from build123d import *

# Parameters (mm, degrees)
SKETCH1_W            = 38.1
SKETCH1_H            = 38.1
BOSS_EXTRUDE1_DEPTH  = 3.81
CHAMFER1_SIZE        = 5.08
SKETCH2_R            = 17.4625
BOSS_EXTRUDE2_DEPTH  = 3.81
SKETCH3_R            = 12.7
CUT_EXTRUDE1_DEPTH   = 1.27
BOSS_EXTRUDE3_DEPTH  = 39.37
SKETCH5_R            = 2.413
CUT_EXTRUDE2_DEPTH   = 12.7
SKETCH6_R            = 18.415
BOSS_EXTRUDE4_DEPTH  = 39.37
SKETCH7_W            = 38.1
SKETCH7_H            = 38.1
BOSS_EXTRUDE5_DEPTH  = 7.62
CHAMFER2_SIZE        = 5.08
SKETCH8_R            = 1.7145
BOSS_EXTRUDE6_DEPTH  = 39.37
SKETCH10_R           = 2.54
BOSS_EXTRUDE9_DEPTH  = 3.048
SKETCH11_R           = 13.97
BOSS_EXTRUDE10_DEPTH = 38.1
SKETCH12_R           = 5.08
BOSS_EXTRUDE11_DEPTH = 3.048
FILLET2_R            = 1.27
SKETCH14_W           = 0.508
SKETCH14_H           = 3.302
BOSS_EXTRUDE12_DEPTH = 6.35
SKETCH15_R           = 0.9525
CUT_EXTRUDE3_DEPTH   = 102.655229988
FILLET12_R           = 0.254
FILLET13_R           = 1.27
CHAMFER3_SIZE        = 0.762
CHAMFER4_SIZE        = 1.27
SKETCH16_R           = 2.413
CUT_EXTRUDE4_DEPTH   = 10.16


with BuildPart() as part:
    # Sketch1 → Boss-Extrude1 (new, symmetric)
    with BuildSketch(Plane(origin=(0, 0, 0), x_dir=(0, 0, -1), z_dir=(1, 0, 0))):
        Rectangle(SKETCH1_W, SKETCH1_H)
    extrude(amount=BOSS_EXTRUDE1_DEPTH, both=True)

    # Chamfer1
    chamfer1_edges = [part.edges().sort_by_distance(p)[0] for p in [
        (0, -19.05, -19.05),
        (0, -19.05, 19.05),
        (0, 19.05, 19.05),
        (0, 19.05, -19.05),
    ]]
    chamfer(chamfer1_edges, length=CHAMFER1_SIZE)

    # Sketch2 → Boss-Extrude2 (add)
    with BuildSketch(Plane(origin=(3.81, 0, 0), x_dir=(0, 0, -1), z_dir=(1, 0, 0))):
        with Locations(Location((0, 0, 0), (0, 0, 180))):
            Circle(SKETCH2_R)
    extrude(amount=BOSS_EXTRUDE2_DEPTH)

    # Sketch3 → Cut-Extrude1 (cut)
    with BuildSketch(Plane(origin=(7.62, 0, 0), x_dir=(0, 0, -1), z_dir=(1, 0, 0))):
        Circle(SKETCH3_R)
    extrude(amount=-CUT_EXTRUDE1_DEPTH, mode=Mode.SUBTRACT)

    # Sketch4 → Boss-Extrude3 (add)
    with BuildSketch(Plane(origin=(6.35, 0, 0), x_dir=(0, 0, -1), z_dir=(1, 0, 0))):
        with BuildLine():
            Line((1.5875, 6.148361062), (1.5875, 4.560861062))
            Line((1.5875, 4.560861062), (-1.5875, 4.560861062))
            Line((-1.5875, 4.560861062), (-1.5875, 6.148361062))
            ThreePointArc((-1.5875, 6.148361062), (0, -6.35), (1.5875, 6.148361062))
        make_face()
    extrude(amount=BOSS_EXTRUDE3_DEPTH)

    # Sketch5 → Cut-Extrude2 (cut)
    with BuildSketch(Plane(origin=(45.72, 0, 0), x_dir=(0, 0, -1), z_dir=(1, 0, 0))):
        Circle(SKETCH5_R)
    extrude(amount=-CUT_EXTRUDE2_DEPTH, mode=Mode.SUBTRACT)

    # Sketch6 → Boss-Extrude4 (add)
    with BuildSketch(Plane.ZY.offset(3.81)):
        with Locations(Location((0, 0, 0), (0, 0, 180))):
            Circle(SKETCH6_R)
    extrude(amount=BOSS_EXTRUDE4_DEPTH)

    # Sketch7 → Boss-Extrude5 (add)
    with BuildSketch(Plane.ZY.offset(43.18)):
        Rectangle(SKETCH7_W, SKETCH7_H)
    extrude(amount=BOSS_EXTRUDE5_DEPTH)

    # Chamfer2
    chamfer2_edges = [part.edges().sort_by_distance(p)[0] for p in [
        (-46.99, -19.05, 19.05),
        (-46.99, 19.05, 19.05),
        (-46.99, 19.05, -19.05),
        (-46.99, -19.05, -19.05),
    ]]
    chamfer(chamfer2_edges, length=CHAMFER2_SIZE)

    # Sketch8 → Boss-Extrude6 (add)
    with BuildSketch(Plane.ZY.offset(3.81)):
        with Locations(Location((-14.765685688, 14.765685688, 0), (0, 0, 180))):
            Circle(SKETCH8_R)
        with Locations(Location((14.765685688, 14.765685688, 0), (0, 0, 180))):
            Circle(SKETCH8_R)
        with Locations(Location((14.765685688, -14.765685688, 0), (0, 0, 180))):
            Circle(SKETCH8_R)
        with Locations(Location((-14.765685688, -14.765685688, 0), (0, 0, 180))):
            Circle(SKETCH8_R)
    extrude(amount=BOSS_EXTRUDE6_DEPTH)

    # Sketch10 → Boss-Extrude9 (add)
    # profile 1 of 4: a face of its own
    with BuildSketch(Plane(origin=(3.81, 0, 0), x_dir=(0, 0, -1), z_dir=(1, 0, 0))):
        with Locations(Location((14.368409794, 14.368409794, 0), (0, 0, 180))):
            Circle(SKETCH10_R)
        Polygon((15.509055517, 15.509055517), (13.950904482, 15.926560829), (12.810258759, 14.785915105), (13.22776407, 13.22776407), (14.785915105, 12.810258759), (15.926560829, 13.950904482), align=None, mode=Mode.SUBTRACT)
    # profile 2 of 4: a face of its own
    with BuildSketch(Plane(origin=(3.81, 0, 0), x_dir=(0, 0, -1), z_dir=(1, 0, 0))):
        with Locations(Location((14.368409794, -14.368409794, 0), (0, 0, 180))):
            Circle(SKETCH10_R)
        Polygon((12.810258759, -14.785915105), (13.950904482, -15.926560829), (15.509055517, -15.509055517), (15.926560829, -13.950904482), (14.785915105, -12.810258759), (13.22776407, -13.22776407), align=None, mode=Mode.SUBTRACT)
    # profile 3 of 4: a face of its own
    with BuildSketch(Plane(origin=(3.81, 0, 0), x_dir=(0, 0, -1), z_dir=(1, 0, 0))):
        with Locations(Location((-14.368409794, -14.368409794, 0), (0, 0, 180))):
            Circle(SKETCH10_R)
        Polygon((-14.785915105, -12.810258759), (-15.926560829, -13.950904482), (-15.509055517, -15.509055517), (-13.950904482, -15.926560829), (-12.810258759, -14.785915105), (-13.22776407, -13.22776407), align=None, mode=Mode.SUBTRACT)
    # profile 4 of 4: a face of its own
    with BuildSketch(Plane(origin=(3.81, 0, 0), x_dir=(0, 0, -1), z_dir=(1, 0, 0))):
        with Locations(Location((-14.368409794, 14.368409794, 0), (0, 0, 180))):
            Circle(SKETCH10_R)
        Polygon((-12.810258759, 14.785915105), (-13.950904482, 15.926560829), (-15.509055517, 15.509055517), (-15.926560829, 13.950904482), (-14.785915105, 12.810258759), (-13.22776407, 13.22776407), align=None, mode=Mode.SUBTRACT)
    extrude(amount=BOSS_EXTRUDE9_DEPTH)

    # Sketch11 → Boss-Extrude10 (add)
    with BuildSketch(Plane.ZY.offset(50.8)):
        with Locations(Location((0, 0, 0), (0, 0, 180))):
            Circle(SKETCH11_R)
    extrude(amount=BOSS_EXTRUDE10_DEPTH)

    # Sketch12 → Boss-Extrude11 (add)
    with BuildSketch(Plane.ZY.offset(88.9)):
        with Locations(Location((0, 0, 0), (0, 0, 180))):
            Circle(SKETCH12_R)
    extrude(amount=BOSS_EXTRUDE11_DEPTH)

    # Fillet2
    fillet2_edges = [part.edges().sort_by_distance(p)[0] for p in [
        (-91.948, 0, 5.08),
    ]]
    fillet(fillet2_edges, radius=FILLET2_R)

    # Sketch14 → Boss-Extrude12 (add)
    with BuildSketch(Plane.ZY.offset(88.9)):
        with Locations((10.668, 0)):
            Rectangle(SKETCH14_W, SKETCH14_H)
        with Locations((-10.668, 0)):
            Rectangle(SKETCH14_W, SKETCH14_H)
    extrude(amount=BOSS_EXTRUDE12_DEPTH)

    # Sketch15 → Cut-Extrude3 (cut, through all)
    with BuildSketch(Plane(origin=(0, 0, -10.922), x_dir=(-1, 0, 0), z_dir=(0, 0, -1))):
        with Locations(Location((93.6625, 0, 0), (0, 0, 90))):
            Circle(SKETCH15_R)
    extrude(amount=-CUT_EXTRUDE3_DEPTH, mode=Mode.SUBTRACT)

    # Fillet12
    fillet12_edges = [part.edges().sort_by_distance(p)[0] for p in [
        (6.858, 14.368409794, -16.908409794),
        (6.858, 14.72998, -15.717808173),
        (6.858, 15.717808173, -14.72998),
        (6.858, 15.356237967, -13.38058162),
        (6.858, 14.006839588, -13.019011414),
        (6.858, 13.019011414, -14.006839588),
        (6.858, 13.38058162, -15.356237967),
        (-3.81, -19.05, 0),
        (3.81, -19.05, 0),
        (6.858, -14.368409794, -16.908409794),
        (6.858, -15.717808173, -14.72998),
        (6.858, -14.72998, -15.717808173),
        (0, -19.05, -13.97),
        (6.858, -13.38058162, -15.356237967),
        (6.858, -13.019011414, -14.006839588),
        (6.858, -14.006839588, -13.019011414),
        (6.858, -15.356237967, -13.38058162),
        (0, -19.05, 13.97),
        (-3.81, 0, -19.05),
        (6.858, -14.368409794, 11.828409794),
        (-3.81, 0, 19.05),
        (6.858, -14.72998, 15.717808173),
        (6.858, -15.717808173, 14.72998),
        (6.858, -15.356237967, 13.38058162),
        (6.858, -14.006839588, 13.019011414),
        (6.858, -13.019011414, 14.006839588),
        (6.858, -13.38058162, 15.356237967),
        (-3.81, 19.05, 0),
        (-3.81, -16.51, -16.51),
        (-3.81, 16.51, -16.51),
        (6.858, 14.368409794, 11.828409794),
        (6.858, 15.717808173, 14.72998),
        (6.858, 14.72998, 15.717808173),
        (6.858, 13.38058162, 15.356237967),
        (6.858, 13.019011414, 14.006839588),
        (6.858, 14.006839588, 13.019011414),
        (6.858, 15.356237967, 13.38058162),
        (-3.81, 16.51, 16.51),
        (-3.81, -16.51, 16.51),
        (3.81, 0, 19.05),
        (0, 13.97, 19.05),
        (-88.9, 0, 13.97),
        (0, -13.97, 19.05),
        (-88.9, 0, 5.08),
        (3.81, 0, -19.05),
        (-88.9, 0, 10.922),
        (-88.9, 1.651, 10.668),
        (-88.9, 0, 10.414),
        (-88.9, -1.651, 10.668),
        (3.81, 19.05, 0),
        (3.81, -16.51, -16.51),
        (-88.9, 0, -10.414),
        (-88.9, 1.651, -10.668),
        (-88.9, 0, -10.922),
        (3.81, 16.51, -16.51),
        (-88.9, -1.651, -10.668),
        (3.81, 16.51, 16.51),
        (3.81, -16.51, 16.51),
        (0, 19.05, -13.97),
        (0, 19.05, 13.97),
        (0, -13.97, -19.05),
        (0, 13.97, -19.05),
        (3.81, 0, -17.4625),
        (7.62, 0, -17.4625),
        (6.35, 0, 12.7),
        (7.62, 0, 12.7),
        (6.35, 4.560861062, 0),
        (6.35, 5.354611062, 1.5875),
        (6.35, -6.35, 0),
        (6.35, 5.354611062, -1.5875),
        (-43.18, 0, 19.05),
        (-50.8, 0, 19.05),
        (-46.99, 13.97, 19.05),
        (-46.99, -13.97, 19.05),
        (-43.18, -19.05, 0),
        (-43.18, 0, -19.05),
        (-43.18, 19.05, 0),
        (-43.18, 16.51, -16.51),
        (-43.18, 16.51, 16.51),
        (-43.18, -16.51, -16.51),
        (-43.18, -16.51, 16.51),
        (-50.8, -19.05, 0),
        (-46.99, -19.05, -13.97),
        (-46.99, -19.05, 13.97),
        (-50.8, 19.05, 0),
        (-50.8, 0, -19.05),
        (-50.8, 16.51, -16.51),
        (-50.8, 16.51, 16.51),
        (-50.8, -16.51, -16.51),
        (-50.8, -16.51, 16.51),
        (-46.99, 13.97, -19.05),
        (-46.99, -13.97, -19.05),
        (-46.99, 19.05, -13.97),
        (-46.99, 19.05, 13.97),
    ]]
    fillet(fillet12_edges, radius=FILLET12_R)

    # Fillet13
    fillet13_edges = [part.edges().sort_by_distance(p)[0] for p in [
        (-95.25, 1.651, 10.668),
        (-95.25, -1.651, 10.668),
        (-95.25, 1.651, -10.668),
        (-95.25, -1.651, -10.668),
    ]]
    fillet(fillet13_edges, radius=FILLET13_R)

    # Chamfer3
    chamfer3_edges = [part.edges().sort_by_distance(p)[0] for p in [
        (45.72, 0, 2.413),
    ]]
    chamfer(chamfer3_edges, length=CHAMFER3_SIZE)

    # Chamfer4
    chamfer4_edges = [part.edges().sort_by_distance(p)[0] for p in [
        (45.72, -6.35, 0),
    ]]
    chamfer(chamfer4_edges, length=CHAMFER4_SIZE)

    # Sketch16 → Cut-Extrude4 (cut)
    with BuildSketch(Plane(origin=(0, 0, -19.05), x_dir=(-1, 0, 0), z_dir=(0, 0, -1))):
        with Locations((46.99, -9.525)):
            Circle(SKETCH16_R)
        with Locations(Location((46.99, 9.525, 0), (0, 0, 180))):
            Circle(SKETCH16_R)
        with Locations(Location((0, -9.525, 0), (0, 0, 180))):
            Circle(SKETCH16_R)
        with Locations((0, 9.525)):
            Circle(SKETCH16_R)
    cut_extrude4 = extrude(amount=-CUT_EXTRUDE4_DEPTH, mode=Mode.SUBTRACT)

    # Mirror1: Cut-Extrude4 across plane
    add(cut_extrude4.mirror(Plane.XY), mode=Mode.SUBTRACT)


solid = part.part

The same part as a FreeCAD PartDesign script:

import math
import FreeCAD as App
import Part
import Sketcher
from FreeCAD import Vector
Q = App.Units.Quantity


def edges_at(feature, points):
    """Names of the edges that pass closest to the given points."""
    edges = feature.Shape.Edges
    near = lambda p: min(range(len(edges)), key=lambda i: edges[i].distToShape(Part.Vertex(*p))[0])
    return sorted({f"Edge{near(p) + 1}" for p in points})


def add_polygon(sketch, points):
    """Adds a closed chain of lines whose ends are joined by coincident constraints."""
    first, n = sketch.GeometryCount, len(points)
    for a, b in zip(points, points[1:] + points[:1]):
        sketch.addGeometry(Part.LineSegment(App.Vector(*a, 0), App.Vector(*b, 0)), False)
    for i in range(n):
        sketch.addConstraint(Sketcher.Constraint("Coincident", first + i, 2, first + (i + 1) % n, 1))

doc = App.newDocument("Part")
body = doc.addObject("PartDesign::Body", "Body")

sketch1 = body.newObject("Sketcher::SketchObject", "Sketch")
sketch1.AttachmentSupport = (doc.getObject("YZ_Plane"), [""])
sketch1.MapMode = "FlatFace"
add_polygon(sketch1, [(19, 19), (-19, 19), (-19, -19), (19, -19)])
sketch1.addConstraint([
    Sketcher.Constraint("Horizontal", 0),
    Sketcher.Constraint("Vertical", 1),
    Sketcher.Constraint("Horizontal", 2),
    Sketcher.Constraint("Vertical", 3),
    Sketcher.Constraint("Symmetric", 0, 2, 2, 2, -1, 1),
    Sketcher.Constraint("Equal", 2, 1),
    Sketcher.Constraint("DistanceX", 0, 2, 0, 1, Q("1.5 in")),
])
pad1 = body.newObject("PartDesign::Pad", "Pad")
pad1.Profile = sketch1
pad1.Length = Q("0.3 in")
pad1.Midplane = True
doc.recompute()

chamfer = body.newObject("PartDesign::Chamfer", "Chamfer")
chamfer.Base = (pad1, edges_at(pad1, [
    (0, -19.05, -19.05),
    (0, -19.05, 19.05),
    (0, 19.05, 19.05),
    (0, 19.05, -19.05),
]))
chamfer.Size = Q("0.2 in")

sketch2 = body.newObject("Sketcher::SketchObject", "Sketch001")
sketch2.AttachmentSupport = (doc.getObject("YZ_Plane"), [""])
sketch2.MapMode = "FlatFace"
sketch2.AttachmentOffset = App.Placement(Vector(0, 0, 0.15 * 25.4), App.Rotation())
sketch2.addGeometry(Part.Circle(Vector(0, 0, 0), Vector(0, 0, 1), 17), False)
sketch2.addConstraint([
    Sketcher.Constraint("Coincident", 0, 3, -1, 1),
    Sketcher.Constraint("Diameter", 0, Q("1.375 in")),
])
pad2 = body.newObject("PartDesign::Pad", "Pad001")
pad2.Profile = sketch2
pad2.Length = Q("0.15 in")

sketch3 = body.newObject("Sketcher::SketchObject", "Sketch002")
sketch3.AttachmentSupport = (doc.getObject("YZ_Plane"), [""])
sketch3.MapMode = "FlatFace"
sketch3.AttachmentOffset = App.Placement(Vector(0, 0, 0.3 * 25.4), App.Rotation())
sketch3.addGeometry(Part.Circle(Vector(0, 0, 0), Vector(0, 0, 1), 13), False)
sketch3.addConstraint([
    Sketcher.Constraint("Coincident", 0, 3, -1, 1),
    Sketcher.Constraint("Diameter", 0, Q("1 in")),
])
pocket1 = body.newObject("PartDesign::Pocket", "Pocket")
pocket1.Profile = sketch3
pocket1.Length = Q("0.05 in")

sketch4 = body.newObject("Sketcher::SketchObject", "Sketch003")
sketch4.AttachmentSupport = (doc.getObject("YZ_Plane"), [""])
sketch4.MapMode = "FlatFace"
sketch4.AttachmentOffset = App.Placement(Vector(0, 0, 0.25 * 25.4), App.Rotation())
sketch4.addGeometry([
    Part.LineSegment(Vector(6.1, -1.6, 0), Vector(4.6, -1.6, 0)),
    Part.LineSegment(Vector(4.6, -1.6, 0), Vector(4.6, 1.6, 0)),
    Part.LineSegment(Vector(4.6, 1.6, 0), Vector(6.1, 1.6, 0)),
    Part.ArcOfCircle(Part.Circle(Vector(0, 0, 0), Vector(0, 0, 1), 6.3), math.radians(14), math.radians(346)),
], False)
sketch4.addConstraint([
    Sketcher.Constraint("Coincident", 0, 2, 1, 1),
    Sketcher.Constraint("Coincident", 1, 2, 2, 1),
    Sketcher.Constraint("Coincident", 2, 2, 3, 1),
    Sketcher.Constraint("Coincident", 3, 2, 0, 1),
    Sketcher.Constraint("Horizontal", 0),
    Sketcher.Constraint("Vertical", 1),
    Sketcher.Constraint("Horizontal", 2),
    Sketcher.Constraint("Coincident", 3, 3, -1, 1),
    Sketcher.Constraint("Vertical", 2, 2, 3, 2),
    Sketcher.Constraint("Radius", 3, Q("0.25 in")),
    Sketcher.Constraint("DistanceX", 0, 2, 0, 1, Q("0.0625 in")),
    Sketcher.Constraint("DistanceY", 1, 1, 1, 2, Q("0.125 in")),
])
pad3 = body.newObject("PartDesign::Pad", "Pad002")
pad3.Profile = sketch4
pad3.Length = Q("1.55 in")

sketch5 = body.newObject("Sketcher::SketchObject", "Sketch004")
sketch5.AttachmentSupport = (doc.getObject("YZ_Plane"), [""])
sketch5.MapMode = "FlatFace"
sketch5.AttachmentOffset = App.Placement(Vector(0, 0, 1.8 * 25.4), App.Rotation())
sketch5.addGeometry(Part.Circle(Vector(0, 0, 0), Vector(0, 0, 1), 2.4), False)
sketch5.addConstraint([
    Sketcher.Constraint("Coincident", 0, 3, -1, 1),
    Sketcher.Constraint("Diameter", 0, Q("0.19 in")),
])
pocket2 = body.newObject("PartDesign::Pocket", "Pocket001")
pocket2.Profile = sketch5
pocket2.Length = Q("0.5 in")

sketch6 = body.newObject("Sketcher::SketchObject", "Sketch005")
sketch6.AttachmentSupport = (doc.getObject("YZ_Plane"), [""])
sketch6.MapMode = "FlatFace"
sketch6.AttachmentOffset = App.Placement(Vector(0, 0, -0.15 * 25.4), App.Rotation())
sketch6.addGeometry(Part.Circle(Vector(0, 0, 0), Vector(0, 0, 1), 18), False)
sketch6.addConstraint([
    Sketcher.Constraint("Coincident", 0, 3, -1, 1),
    Sketcher.Constraint("Diameter", 0, Q("1.45 in")),
])
pad4 = body.newObject("PartDesign::Pad", "Pad003")
pad4.Profile = sketch6
pad4.Length = Q("1.55 in")
pad4.Reversed = True

sketch7 = body.newObject("Sketcher::SketchObject", "Sketch006")
sketch7.AttachmentSupport = (doc.getObject("YZ_Plane"), [""])
sketch7.MapMode = "FlatFace"
sketch7.AttachmentOffset = App.Placement(Vector(0, 0, -1.7 * 25.4), App.Rotation())
add_polygon(sketch7, [(19, -19), (-19, -19), (-19, 19), (19, 19)])
sketch7.addConstraint([
    Sketcher.Constraint("Horizontal", 0),
    Sketcher.Constraint("Vertical", 1),
    Sketcher.Constraint("Horizontal", 2),
    Sketcher.Constraint("Vertical", 3),
    Sketcher.Constraint("Symmetric", 0, 2, 2, 2, -1, 1),
    Sketcher.Constraint("Equal", 2, 1),
    Sketcher.Constraint("DistanceX", 0, 2, 0, 1, Q("1.5 in")),
])
pad5 = body.newObject("PartDesign::Pad", "Pad004")
pad5.Profile = sketch7
pad5.Length = Q("0.3 in")
pad5.Reversed = True
doc.recompute()

chamfer2 = body.newObject("PartDesign::Chamfer", "Chamfer001")
chamfer2.Base = (pad5, edges_at(pad5, [
    (-46.99, -19.05, 19.05),
    (-46.99, 19.05, 19.05),
    (-46.99, 19.05, -19.05),
    (-46.99, -19.05, -19.05),
]))
chamfer2.Size = Q("0.2 in")

sketch8 = body.newObject("Sketcher::SketchObject", "Sketch007")
sketch8.AttachmentSupport = (doc.getObject("YZ_Plane"), [""])
sketch8.MapMode = "FlatFace"
sketch8.AttachmentOffset = App.Placement(Vector(0, 0, -0.15 * 25.4), App.Rotation())
sketch8.addGeometry([
    Part.Circle(Vector(14.8, -14.8, 0), Vector(0, 0, 1), 1.7),
    Part.Circle(Vector(14.8, 14.8, 0), Vector(0, 0, 1), 1.7),
    Part.Circle(Vector(-14.8, 14.8, 0), Vector(0, 0, 1), 1.7),
    Part.Circle(Vector(-14.8, -14.8, 0), Vector(0, 0, 1), 1.7),
], False)
sketch8.addConstraint([
    Sketcher.Constraint("Equal", 0, 1),
    Sketcher.Constraint("Equal", 1, 2),
    Sketcher.Constraint("Equal", 2, 3),
    Sketcher.Constraint("Symmetric", 0, 3, 2, 3, -1, 1),
    Sketcher.Constraint("Symmetric", 1, 3, 3, 3, -1, 1),
    Sketcher.Constraint("Symmetric", 1, 3, 2, 3, -2),
    Sketcher.Constraint("Diameter", 0, Q("0.135 in")),
    Sketcher.Constraint("DistanceY", 0, 3, 1, 3, 29.531371),
    Sketcher.Constraint("DistanceX", 2, 3, 1, 3, 29.531371),
])
pad6 = body.newObject("PartDesign::Pad", "Pad005")
pad6.Profile = sketch8
pad6.Length = Q("1.55 in")
pad6.Reversed = True

sketch9 = body.newObject("Sketcher::SketchObject", "Sketch008")
sketch9.AttachmentSupport = (doc.getObject("YZ_Plane"), [""])
sketch9.MapMode = "FlatFace"
sketch9.AttachmentOffset = App.Placement(Vector(0, 0, 0.15 * 25.4), App.Rotation())
sketch9.addGeometry(Part.Circle(Vector(14.4, -14.4, 0), Vector(0, 0, 1), 2.5), False)
add_polygon(sketch9, [(15.9, -14), (15.5, -15.5), (14, -15.9), (12.8, -14.8), (13.2, -13.2), (14.8, -12.8)])
sketch9.addGeometry(Part.Circle(Vector(-14.4, -14.4, 0), Vector(0, 0, 1), 2.5), False)
add_polygon(sketch9, [(-15.9, -14), (-14.8, -12.8), (-13.2, -13.2), (-12.8, -14.8), (-14, -15.9), (-15.5, -15.5)])
sketch9.addGeometry(Part.Circle(Vector(-14.4, 14.4, 0), Vector(0, 0, 1), 2.5), False)
add_polygon(sketch9, [(-14, 15.9), (-12.8, 14.8), (-13.2, 13.2), (-14.8, 12.8), (-15.9, 14), (-15.5, 15.5)])
sketch9.addGeometry(Part.Circle(Vector(14.4, 14.4, 0), Vector(0, 0, 1), 2.5), False)
add_polygon(sketch9, [(15.9, 14), (14.8, 12.8), (13.2, 13.2), (12.8, 14.8), (14, 15.9), (15.5, 15.5)])
sketch9.addConstraint([
    Sketcher.Constraint("Equal", 0, 7),
    Sketcher.Constraint("Equal", 7, 14),
    Sketcher.Constraint("Equal", 14, 21),
    Sketcher.Constraint("Symmetric", 0, 3, 14, 3, -1, 1),
    Sketcher.Constraint("Symmetric", 7, 3, 21, 3, -1, 1),
    Sketcher.Constraint("Symmetric", 3, 2, 15, 2, -1, 1),
    Sketcher.Constraint("Symmetric", 4, 2, 16, 2, -1, 1),
    Sketcher.Constraint("Symmetric", 5, 2, 17, 2, -1, 1),
    Sketcher.Constraint("Symmetric", 6, 2, 18, 2, -1, 1),
    Sketcher.Constraint("Symmetric", 1, 2, 19, 2, -1, 1),
    Sketcher.Constraint("Symmetric", 2, 2, 20, 2, -1, 1),
    Sketcher.Constraint("Symmetric", 8, 2, 22, 2, -1, 1),
    Sketcher.Constraint("Symmetric", 9, 2, 23, 2, -1, 1),
    Sketcher.Constraint("Symmetric", 10, 2, 24, 2, -1, 1),
    Sketcher.Constraint("Symmetric", 11, 2, 25, 2, -1, 1),
    Sketcher.Constraint("Symmetric", 12, 2, 26, 2, -1, 1),
    Sketcher.Constraint("Symmetric", 13, 2, 27, 2, -1, 1),
    Sketcher.Constraint("Symmetric", 0, 3, 7, 3, -2),
    Sketcher.Constraint("Symmetric", 5, 2, 8, 2, -2),
    Sketcher.Constraint("Symmetric", 4, 2, 9, 2, -2),
    Sketcher.Constraint("Symmetric", 3, 2, 10, 2, -2),
    Sketcher.Constraint("Symmetric", 2, 2, 11, 2, -2),
    Sketcher.Constraint("Symmetric", 1, 2, 12, 2, -2),
    Sketcher.Constraint("Symmetric", 6, 2, 13, 2, -2),
    Sketcher.Constraint("Parallel", 1, 4),
    Sketcher.Constraint("Parallel", 2, 5),
    Sketcher.Constraint("Parallel", 3, 6),
    Sketcher.Constraint("Perpendicular", 6, 8),
    Sketcher.Constraint("Perpendicular", 4, 9),
    Sketcher.Constraint("Equal", 1, 2),
    Sketcher.Constraint("Equal", 2, 3),
    Sketcher.Constraint("Equal", 3, 4),
    Sketcher.Constraint("Diameter", 0, Q("0.2 in")),
    Sketcher.Constraint("Angle", 1, Q("-105 deg")),
    Sketcher.Constraint("DistanceX", -1, 1, 0, 3, 14.36841),
    Sketcher.Constraint("DistanceY", 0, 3, -1, 1, 14.36841),
    Sketcher.Constraint("DistanceY", 2, 2, -1, 1, 15.926561),
    Sketcher.Constraint("DistanceX", -1, 1, 3, 2, 12.810259),
    Sketcher.Constraint("DistanceY", 5, 2, -1, 1, 12.810259),
])
pad7 = body.newObject("PartDesign::Pad", "Pad006")
pad7.Profile = sketch9
pad7.Length = Q("0.12 in")

sketch10 = body.newObject("Sketcher::SketchObject", "Sketch009")
sketch10.AttachmentSupport = (doc.getObject("YZ_Plane"), [""])
sketch10.MapMode = "FlatFace"
sketch10.AttachmentOffset = App.Placement(Vector(0, 0, -2 * 25.4), App.Rotation())
sketch10.addGeometry(Part.Circle(Vector(0, 0, 0), Vector(0, 0, 1), 14), False)
sketch10.addConstraint([
    Sketcher.Constraint("Coincident", 0, 3, -1, 1),
    Sketcher.Constraint("Diameter", 0, Q("1.1 in")),
])
pad8 = body.newObject("PartDesign::Pad", "Pad007")
pad8.Profile = sketch10
pad8.Length = Q("1.5 in")
pad8.Reversed = True

sketch11 = body.newObject("Sketcher::SketchObject", "Sketch010")
sketch11.AttachmentSupport = (doc.getObject("YZ_Plane"), [""])
sketch11.MapMode = "FlatFace"
sketch11.AttachmentOffset = App.Placement(Vector(0, 0, -3.5 * 25.4), App.Rotation())
sketch11.addGeometry(Part.Circle(Vector(0, 0, 0), Vector(0, 0, 1), 5), False)
sketch11.addConstraint([
    Sketcher.Constraint("Coincident", 0, 3, -1, 1),
    Sketcher.Constraint("Diameter", 0, Q("0.4 in")),
])
pad9 = body.newObject("PartDesign::Pad", "Pad008")
pad9.Profile = sketch11
pad9.Length = Q("0.12 in")
pad9.Reversed = True
doc.recompute()

fillet = body.newObject("PartDesign::Fillet", "Fillet")
fillet.Base = (pad9, edges_at(pad9, [(-91.948, 0, 5.08)]))
fillet.Radius = Q("0.05 in")

sketch12 = body.newObject("Sketcher::SketchObject", "Sketch011")
sketch12.AttachmentSupport = (doc.getObject("YZ_Plane"), [""])
sketch12.MapMode = "FlatFace"
sketch12.AttachmentOffset = App.Placement(Vector(0, 0, -3.5 * 25.4), App.Rotation())
add_polygon(sketch12, [(1.7, 10.4), (-1.7, 10.4), (-1.7, 10.9), (1.7, 10.9)])
add_polygon(sketch12, [(1.7, -10.9), (-1.7, -10.9), (-1.7, -10.4), (1.7, -10.4)])
sketch12.addConstraint([
    Sketcher.Constraint("Horizontal", 0),
    Sketcher.Constraint("Vertical", 1),
    Sketcher.Constraint("Horizontal", 2),
    Sketcher.Constraint("Vertical", 3),
    Sketcher.Constraint("Horizontal", 4),
    Sketcher.Constraint("Vertical", 5),
    Sketcher.Constraint("Horizontal", 6),
    Sketcher.Constraint("Vertical", 7),
    Sketcher.Constraint("Symmetric", 2, 2, 4, 2, -1, 1),
    Sketcher.Constraint("Symmetric", 0, 2, 6, 2, -1, 1),
    Sketcher.Constraint("Vertical", 1, 2, 4, 2),
    Sketcher.Constraint("DistanceX", 0, 2, 0, 1, Q("0.13 in")),
    Sketcher.Constraint("DistanceY", 1, 1, 1, 2, Q("0.02 in")),
    Sketcher.Constraint("DistanceY", -1, 1, 0, 2, Q("0.41 in")),
])
pad10 = body.newObject("PartDesign::Pad", "Pad009")
pad10.Profile = sketch12
pad10.Length = Q("0.25 in")
pad10.Reversed = True

sketch13 = body.newObject("Sketcher::SketchObject", "Sketch012")
sketch13.AttachmentSupport = (doc.getObject("XY_Plane"), [""])
sketch13.MapMode = "FlatFace"
sketch13.AttachmentOffset = App.Placement(Vector(0, 0, -0.43 * 25.4), App.Rotation())
sketch13.addGeometry(Part.Circle(Vector(-93.7, 0, 0), Vector(0, 0, 1), 1), False)
sketch13.addConstraint([
    Sketcher.Constraint("PointOnObject", 0, 3, -1),
    Sketcher.Constraint("Diameter", 0, Q("0.075 in")),
    Sketcher.Constraint("DistanceX", 0, 3, -1, 1, Q("3.6875 in")),
])
pocket3 = body.newObject("PartDesign::Pocket", "Pocket002")
pocket3.Profile = sketch13
pocket3.Type = "ThroughAll"
pocket3.Reversed = True
doc.recompute()

fillet2 = body.newObject("PartDesign::Fillet", "Fillet001")
fillet2.Base = (pocket3, edges_at(pocket3, [
    (6.858, 14.368, -16.908),
    (6.858, 14.73, -15.718),
    (6.858, 15.718, -14.73),
    (6.858, 15.356, -13.381),
    (6.858, 14.007, -13.019),
    (6.858, 13.019, -14.007),
    (6.858, 13.381, -15.356),
    (-3.81, -19.05, 0),
    (3.81, -19.05, 0),
    (6.858, -14.368, -16.908),
    (6.858, -15.718, -14.73),
    (6.858, -14.73, -15.718),
    (0, -19.05, -13.97),
    (6.858, -13.381, -15.356),
    (6.858, -13.019, -14.007),
    (6.858, -14.007, -13.019),
    (6.858, -15.356, -13.381),
    (0, -19.05, 13.97),
    (-3.81, 0, -19.05),
    (6.858, -14.368, 11.828),
    (-3.81, 0, 19.05),
    (6.858, -14.73, 15.718),
    (6.858, -15.718, 14.73),
    (6.858, -15.356, 13.381),
    (6.858, -14.007, 13.019),
    (6.858, -13.019, 14.007),
    (6.858, -13.381, 15.356),
    (-3.81, 19.05, 0),
    (-3.81, -16.51, -16.51),
    (-3.81, 16.51, -16.51),
    (6.858, 14.368, 11.828),
    (6.858, 15.718, 14.73),
    (6.858, 14.73, 15.718),
    (6.858, 13.381, 15.356),
    (6.858, 13.019, 14.007),
    (6.858, 14.007, 13.019),
    (6.858, 15.356, 13.381),
    (-3.81, 16.51, 16.51),
    (-3.81, -16.51, 16.51),
    (3.81, 0, 19.05),
    (0, 13.97, 19.05),
    (-88.9, 0, 13.97),
    (0, -13.97, 19.05),
    (-88.9, 0, 5.08),
    (3.81, 0, -19.05),
    (-88.9, 0, 10.922),
    (-88.9, 1.651, 10.668),
    (-88.9, 0, 10.414),
    (-88.9, -1.651, 10.668),
    (3.81, 19.05, 0),
    (3.81, -16.51, -16.51),
    (-88.9, 0, -10.414),
    (-88.9, 1.651, -10.668),
    (-88.9, 0, -10.922),
    (3.81, 16.51, -16.51),
    (-88.9, -1.651, -10.668),
    (3.81, 16.51, 16.51),
    (3.81, -16.51, 16.51),
    (0, 19.05, -13.97),
    (0, 19.05, 13.97),
    (0, -13.97, -19.05),
    (0, 13.97, -19.05),
    (3.81, 0, -17.462),
    (7.62, 0, -17.462),
    (6.35, 0, 12.7),
    (7.62, 0, 12.7),
    (6.35, 4.561, 0),
    (6.35, 5.355, 1.587),
    (6.35, -6.35, 0),
    (6.35, 5.355, -1.587),
    (-43.18, 0, 19.05),
    (-50.8, 0, 19.05),
    (-46.99, 13.97, 19.05),
    (-46.99, -13.97, 19.05),
    (-43.18, -19.05, 0),
    (-43.18, 0, -19.05),
    (-43.18, 19.05, 0),
    (-43.18, 16.51, -16.51),
    (-43.18, 16.51, 16.51),
    (-43.18, -16.51, -16.51),
    (-43.18, -16.51, 16.51),
    (-50.8, -19.05, 0),
    (-46.99, -19.05, -13.97),
    (-46.99, -19.05, 13.97),
    (-50.8, 19.05, 0),
    (-50.8, 0, -19.05),
    (-50.8, 16.51, -16.51),
    (-50.8, 16.51, 16.51),
    (-50.8, -16.51, -16.51),
    (-50.8, -16.51, 16.51),
    (-46.99, 13.97, -19.05),
    (-46.99, -13.97, -19.05),
    (-46.99, 19.05, -13.97),
    (-46.99, 19.05, 13.97),
]))
fillet2.Radius = Q("0.01 in")
doc.recompute()

fillet3 = body.newObject("PartDesign::Fillet", "Fillet002")
fillet3.Base = (fillet2, edges_at(fillet2, [
    (-95.25, 1.651, 10.668),
    (-95.25, -1.651, 10.668),
    (-95.25, 1.651, -10.668),
    (-95.25, -1.651, -10.668),
]))
fillet3.Radius = Q("0.05 in")
doc.recompute()

chamfer3 = body.newObject("PartDesign::Chamfer", "Chamfer002")
chamfer3.Base = (fillet3, edges_at(fillet3, [(45.72, 0, 2.413)]))
chamfer3.Size = Q("0.03 in")
doc.recompute()

chamfer4 = body.newObject("PartDesign::Chamfer", "Chamfer003")
chamfer4.Base = (chamfer3, edges_at(chamfer3, [(45.72, -6.35, 0)]))
chamfer4.Size = Q("0.05 in")

sketch14 = body.newObject("Sketcher::SketchObject", "Sketch013")
sketch14.AttachmentSupport = (doc.getObject("XY_Plane"), [""])
sketch14.MapMode = "FlatFace"
sketch14.AttachmentOffset = App.Placement(Vector(0, 0, -0.75 * 25.4), App.Rotation())
sketch14.addGeometry([
    Part.Circle(Vector(-47, -9.5, 0), Vector(0, 0, 1), 2.4),
    Part.Circle(Vector(-47, 9.5, 0), Vector(0, 0, 1), 2.4),
    Part.Circle(Vector(0, -9.5, 0), Vector(0, 0, 1), 2.4),
    Part.Circle(Vector(0, 9.5, 0), Vector(0, 0, 1), 2.4),
], False)
sketch14.addConstraint([
    Sketcher.Constraint("Equal", 0, 1),
    Sketcher.Constraint("Equal", 1, 2),
    Sketcher.Constraint("Equal", 2, 3),
    Sketcher.Constraint("Symmetric", 2, 3, 3, 3, -1, 1),
    Sketcher.Constraint("Symmetric", 0, 3, 1, 3, -1),
    Sketcher.Constraint("PointOnObject", 2, 3, -2),
    Sketcher.Constraint("Horizontal", 0, 3, 2, 3),
    Sketcher.Constraint("Diameter", 0, Q("0.19 in")),
    Sketcher.Constraint("DistanceX", 0, 3, -1, 1, Q("1.85 in")),
    Sketcher.Constraint("DistanceY", 0, 3, 1, 3, Q("0.75 in")),
])
pocket4 = body.newObject("PartDesign::Pocket", "Pocket003")
pocket4.Profile = sketch14
pocket4.Length = Q("0.4 in")
pocket4.Reversed = True
doc.recompute()

mirrored = body.newObject("PartDesign::Mirrored", "Mirrored")
mirrored.Originals = [pocket4]
mirrored.MirrorPlane = (doc.getObject("XY_Plane"), [""])
body.Tip = mirrored

doc.recompute()
